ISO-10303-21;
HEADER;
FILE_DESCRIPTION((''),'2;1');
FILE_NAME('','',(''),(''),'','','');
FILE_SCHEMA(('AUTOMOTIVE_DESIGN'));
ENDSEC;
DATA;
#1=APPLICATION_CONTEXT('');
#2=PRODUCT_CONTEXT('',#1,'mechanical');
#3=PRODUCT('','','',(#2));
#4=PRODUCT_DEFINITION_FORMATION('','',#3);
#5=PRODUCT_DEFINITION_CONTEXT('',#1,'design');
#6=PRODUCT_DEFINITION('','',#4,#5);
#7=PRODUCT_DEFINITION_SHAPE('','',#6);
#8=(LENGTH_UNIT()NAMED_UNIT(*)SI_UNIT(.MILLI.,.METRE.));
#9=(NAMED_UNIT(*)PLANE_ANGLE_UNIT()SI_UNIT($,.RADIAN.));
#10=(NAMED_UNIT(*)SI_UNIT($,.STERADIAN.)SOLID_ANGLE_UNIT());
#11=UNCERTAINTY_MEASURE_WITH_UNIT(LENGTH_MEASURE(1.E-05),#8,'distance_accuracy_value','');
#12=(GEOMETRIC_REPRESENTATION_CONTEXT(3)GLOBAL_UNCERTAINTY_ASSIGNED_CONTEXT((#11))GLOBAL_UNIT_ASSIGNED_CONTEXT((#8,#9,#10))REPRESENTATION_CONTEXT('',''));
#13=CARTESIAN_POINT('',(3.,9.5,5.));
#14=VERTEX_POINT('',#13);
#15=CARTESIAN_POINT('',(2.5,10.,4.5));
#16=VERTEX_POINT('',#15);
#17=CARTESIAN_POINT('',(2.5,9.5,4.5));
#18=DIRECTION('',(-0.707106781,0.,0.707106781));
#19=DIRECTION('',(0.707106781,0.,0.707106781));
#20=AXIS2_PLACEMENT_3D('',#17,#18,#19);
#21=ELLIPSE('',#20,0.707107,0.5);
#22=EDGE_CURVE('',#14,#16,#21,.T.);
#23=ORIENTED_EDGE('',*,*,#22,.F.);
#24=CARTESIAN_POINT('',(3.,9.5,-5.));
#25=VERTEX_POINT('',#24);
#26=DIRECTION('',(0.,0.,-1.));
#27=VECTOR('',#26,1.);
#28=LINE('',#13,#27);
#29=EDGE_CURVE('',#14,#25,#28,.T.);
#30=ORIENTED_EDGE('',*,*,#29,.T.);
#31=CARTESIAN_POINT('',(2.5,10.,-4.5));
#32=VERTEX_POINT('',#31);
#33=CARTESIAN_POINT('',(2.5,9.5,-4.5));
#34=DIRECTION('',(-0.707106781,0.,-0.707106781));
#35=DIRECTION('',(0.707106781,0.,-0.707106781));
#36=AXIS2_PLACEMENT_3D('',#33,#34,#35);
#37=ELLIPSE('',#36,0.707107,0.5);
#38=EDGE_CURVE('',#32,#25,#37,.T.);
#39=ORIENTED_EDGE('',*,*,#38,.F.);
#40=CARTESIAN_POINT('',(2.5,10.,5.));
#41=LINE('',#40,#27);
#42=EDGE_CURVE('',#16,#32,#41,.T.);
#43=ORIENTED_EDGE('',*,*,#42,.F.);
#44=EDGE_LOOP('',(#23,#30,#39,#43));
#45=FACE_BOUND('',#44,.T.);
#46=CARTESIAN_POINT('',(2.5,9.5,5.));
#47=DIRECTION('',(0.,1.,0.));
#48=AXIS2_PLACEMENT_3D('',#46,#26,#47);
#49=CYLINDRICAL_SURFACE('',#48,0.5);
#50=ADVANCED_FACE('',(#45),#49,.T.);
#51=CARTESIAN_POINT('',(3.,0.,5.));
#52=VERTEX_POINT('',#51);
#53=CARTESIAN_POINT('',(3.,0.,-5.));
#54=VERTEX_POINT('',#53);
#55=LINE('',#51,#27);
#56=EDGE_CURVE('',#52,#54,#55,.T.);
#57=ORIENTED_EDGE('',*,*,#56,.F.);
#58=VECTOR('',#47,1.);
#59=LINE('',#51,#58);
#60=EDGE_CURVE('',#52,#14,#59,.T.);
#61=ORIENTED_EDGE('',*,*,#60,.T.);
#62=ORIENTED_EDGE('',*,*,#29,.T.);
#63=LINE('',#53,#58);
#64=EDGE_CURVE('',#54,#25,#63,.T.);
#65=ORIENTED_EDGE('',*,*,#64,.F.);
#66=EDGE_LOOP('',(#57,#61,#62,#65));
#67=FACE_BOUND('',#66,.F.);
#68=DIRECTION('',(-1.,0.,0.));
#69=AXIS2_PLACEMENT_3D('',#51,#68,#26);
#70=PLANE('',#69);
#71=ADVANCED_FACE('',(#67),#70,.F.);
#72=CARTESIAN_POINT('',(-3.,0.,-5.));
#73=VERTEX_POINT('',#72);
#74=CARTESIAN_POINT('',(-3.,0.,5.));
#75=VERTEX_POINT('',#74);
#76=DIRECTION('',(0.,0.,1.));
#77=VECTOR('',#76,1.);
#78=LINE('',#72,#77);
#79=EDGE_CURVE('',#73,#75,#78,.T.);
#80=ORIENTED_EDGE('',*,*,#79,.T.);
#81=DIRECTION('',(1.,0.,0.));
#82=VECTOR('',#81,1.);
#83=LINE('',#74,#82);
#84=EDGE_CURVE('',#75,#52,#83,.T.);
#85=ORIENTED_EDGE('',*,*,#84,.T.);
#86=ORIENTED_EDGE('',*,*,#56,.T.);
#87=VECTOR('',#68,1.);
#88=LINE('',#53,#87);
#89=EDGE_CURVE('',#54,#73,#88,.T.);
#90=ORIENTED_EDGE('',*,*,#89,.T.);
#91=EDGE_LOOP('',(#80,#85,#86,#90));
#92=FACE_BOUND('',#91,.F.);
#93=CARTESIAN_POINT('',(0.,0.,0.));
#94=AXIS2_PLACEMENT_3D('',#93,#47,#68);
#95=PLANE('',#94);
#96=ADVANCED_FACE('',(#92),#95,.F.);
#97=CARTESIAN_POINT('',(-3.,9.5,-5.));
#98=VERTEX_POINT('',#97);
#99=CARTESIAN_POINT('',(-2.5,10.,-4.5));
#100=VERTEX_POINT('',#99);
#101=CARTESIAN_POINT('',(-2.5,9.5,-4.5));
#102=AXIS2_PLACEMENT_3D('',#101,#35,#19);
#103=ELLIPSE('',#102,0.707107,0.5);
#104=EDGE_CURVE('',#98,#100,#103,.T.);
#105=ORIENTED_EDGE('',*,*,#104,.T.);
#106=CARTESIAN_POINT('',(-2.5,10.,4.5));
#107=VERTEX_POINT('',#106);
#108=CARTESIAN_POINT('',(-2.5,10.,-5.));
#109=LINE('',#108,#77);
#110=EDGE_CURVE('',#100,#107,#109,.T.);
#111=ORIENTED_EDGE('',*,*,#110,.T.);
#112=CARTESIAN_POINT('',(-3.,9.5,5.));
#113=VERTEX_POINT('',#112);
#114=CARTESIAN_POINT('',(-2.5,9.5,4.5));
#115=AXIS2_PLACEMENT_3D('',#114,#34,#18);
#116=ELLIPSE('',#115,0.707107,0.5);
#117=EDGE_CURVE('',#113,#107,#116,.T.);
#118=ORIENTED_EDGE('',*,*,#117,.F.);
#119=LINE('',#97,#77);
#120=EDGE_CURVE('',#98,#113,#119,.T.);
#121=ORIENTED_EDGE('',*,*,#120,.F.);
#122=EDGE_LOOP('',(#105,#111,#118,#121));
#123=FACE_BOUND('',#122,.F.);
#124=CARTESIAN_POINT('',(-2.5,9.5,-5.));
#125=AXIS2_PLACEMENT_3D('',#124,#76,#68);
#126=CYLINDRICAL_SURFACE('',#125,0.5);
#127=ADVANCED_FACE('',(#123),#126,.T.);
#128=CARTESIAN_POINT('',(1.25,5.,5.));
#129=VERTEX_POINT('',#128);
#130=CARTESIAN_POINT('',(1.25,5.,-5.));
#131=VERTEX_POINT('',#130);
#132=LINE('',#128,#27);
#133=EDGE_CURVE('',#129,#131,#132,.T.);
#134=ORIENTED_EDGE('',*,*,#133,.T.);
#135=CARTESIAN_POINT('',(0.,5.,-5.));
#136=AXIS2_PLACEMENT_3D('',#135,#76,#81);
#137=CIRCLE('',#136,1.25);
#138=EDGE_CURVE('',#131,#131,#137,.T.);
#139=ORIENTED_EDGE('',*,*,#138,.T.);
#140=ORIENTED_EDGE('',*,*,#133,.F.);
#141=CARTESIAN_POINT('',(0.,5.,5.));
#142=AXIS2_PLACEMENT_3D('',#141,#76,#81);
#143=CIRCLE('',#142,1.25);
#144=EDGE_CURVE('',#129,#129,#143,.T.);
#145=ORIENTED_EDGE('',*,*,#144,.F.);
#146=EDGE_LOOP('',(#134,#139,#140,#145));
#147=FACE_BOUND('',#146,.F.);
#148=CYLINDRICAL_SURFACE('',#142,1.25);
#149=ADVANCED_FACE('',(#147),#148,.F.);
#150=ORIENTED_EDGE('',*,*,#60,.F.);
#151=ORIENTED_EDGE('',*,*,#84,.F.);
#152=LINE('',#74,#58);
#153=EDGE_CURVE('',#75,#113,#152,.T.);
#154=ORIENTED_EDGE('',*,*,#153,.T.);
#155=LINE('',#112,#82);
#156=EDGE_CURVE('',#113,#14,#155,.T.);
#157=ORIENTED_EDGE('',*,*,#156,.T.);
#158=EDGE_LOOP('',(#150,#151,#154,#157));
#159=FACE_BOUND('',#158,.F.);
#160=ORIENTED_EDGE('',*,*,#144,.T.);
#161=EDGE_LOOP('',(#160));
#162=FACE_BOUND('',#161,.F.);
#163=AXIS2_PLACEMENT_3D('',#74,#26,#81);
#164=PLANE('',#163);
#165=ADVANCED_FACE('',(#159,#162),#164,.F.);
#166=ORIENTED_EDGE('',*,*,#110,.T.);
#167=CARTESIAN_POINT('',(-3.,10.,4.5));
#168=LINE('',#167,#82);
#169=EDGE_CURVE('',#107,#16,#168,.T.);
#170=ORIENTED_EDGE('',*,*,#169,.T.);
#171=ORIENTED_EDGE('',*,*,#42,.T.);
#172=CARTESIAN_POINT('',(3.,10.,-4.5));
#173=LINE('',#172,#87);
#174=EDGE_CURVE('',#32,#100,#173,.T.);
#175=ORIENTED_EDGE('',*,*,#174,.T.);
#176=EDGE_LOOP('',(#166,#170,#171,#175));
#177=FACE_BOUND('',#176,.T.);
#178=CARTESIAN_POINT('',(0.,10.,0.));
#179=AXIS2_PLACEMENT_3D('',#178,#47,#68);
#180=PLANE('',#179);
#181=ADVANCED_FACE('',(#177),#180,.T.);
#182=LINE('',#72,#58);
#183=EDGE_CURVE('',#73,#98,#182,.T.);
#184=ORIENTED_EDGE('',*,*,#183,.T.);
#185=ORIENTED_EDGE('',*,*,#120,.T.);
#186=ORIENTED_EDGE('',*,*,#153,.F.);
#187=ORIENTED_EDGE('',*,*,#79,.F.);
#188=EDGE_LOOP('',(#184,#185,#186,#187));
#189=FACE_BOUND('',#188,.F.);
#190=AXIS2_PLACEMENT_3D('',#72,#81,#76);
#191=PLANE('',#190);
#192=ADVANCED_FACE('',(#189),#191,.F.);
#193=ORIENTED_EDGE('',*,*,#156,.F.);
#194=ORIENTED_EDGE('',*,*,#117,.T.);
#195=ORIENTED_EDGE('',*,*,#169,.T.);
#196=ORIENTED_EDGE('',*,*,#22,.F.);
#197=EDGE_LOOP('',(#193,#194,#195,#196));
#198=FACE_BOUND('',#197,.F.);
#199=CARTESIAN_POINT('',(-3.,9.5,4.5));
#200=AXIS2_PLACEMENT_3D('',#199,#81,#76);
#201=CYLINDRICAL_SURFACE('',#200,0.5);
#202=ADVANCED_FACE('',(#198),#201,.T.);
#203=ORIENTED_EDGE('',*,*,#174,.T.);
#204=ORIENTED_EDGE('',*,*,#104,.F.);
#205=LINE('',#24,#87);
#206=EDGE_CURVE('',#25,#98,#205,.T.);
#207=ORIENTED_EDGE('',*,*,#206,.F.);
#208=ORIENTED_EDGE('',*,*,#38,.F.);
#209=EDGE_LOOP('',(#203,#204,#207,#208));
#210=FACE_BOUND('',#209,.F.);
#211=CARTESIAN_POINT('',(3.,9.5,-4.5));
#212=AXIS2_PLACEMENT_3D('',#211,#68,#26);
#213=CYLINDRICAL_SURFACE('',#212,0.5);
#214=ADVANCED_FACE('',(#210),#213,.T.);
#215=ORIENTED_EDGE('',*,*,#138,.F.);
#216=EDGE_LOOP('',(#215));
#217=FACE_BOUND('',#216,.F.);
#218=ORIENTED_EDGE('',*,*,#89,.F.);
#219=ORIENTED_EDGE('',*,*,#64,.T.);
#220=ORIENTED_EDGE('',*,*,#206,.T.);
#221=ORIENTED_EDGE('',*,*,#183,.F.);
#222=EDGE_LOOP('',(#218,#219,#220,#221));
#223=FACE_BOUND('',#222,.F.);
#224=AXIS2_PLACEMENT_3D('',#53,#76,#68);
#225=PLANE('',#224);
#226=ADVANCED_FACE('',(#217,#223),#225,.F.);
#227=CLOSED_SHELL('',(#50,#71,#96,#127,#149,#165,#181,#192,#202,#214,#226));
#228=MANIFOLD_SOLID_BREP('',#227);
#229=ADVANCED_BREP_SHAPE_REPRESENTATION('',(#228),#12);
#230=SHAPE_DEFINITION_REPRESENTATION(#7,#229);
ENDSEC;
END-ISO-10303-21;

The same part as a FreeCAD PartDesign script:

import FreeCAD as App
import Part
import Sketcher
from FreeCAD import Vector


def edges_at(feature, points):
    """Names of the edges that pass closest to the given points."""
    edges = feature.Shape.Edges
    near = lambda p: min(range(len(edges)), key=lambda i: edges[i].distToShape(Part.Vertex(*p))[0])
    return sorted({f"Edge{near(p) + 1}" for p in points})

doc = App.newDocument("Part")
body = doc.addObject("PartDesign::Body", "Body")

sketch1 = body.newObject("Sketcher::SketchObject", "Sketch")
sketch1.AttachmentSupport = (doc.getObject("XZ_Plane"), [""])
sketch1.MapMode = "FlatFace"
sketch1.addGeometry(Part.LineSegment(Vector(-3, -5, 0), Vector(-3, 5, 0)), False)
sketch1.addGeometry(Part.LineSegment(Vector(-3, 5, 0), Vector(3, 5, 0)), False)
sketch1.addGeometry(Part.LineSegment(Vector(3, 5, 0), Vector(3, -5, 0)), False)
sketch1.addGeometry(Part.LineSegment(Vector(3, -5, 0), Vector(-3, -5, 0)), False)
sketch1.addConstraint(Sketcher.Constraint("Coincident", 0, 2, 1, 1))
sketch1.addConstraint(Sketcher.Constraint("Coincident", 1, 2, 2, 1))
sketch1.addConstraint(Sketcher.Constraint("Coincident", 2, 2, 3, 1))
sketch1.addConstraint(Sketcher.Constraint("Coincident", 3, 2, 0, 1))
sketch1.addConstraint(Sketcher.Constraint("Vertical", 0))
sketch1.addConstraint(Sketcher.Constraint("Horizontal", 1))
sketch1.addConstraint(Sketcher.Constraint("Vertical", 2))
sketch1.addConstraint(Sketcher.Constraint("Horizontal", 3))
sketch1.addConstraint(Sketcher.Constraint("Symmetric", 0, 2, 2, 2, -1, 1))
sketch1.addConstraint(Sketcher.Constraint("DistanceX", 1, 1, 1, 2, 6.0))
sketch1.addConstraint(Sketcher.Constraint("DistanceY", 0, 1, 0, 2, 10.0))
pad1 = body.newObject("PartDesign::Pad", "Pad")
pad1.Profile = sketch1
pad1.Length = 10
pad1.Reversed = True

sketch2 = body.newObject("Sketcher::SketchObject", "Sketch001")
sketch2.AttachmentSupport = (doc.getObject("XY_Plane"), [""])
sketch2.MapMode = "FlatFace"
sketch2.AttachmentOffset = App.Placement(Vector(0, 0, 5), App.Rotation())
sketch2.addGeometry(Part.Circle(Vector(0, 5, 0), Vector(0, 0, 1), 1.2), False)
sketch2.addConstraint(Sketcher.Constraint("PointOnObject", 0, 3, -2))
sketch2.addConstraint(Sketcher.Constraint("Diameter", 0, 2.5))
sketch2.addConstraint(Sketcher.Constraint("DistanceY", -1, 1, 0, 3, 5.0))
pocket1 = body.newObject("PartDesign::Pocket", "Pocket")
pocket1.Profile = sketch2
pocket1.Length = 10
doc.recompute()

fillet = body.newObject("PartDesign::Fillet", "Fillet")
fillet.Base = (pocket1, edges_at(pocket1, [
    (-3, 10, 0),
    (0, 10, 5),
    (3, 10, 0),
    (0, 10, -5),
]))
fillet.Radius = 0.5

doc.recompute()
